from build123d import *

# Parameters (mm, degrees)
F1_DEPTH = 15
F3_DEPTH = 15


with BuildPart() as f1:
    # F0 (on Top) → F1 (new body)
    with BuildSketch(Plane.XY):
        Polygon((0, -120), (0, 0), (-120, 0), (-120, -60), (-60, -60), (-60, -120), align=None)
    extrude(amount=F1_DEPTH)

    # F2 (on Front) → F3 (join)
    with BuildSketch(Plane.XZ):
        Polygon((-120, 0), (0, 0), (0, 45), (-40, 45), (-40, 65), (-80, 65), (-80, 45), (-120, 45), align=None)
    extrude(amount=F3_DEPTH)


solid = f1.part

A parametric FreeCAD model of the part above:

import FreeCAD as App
import Part
import Sketcher
from FreeCAD import Vector

doc = App.newDocument("Part")
body = doc.addObject("PartDesign::Body", "Body")

sketch1 = doc.addObject("Sketcher::SketchObject", "Sketch")
body.addObject(sketch1)
sketch1.AttachmentSupport = (doc.XY_Plane, [""])
sketch1.MapMode = "FlatFace"
sketch1.addGeometry(Part.LineSegment(Vector(0, -120, 0), Vector(0, 0, 0)), False)
sketch1.addGeometry(Part.LineSegment(Vector(0, 0, 0), Vector(-120, 0, 0)), False)
sketch1.addGeometry(Part.LineSegment(Vector(-120, 0, 0), Vector(-120, -60, 0)), False)
sketch1.addGeometry(Part.LineSegment(Vector(-120, -60, 0), Vector(-60, -60, 0)), False)
sketch1.addGeometry(Part.LineSegment(Vector(-60, -60, 0), Vector(-60, -120, 0)), False)
sketch1.addGeometry(Part.LineSegment(Vector(-60, -120, 0), Vector(0, -120, 0)), False)
sketch1.addConstraint(Sketcher.Constraint("Coincident", 0, 2, 1, 1))
sketch1.addConstraint(Sketcher.Constraint("Coincident", 1, 2, 2, 1))
sketch1.addConstraint(Sketcher.Constraint("Coincident", 2, 2, 3, 1))
sketch1.addConstraint(Sketcher.Constraint("Coincident", 3, 2, 4, 1))
sketch1.addConstraint(Sketcher.Constraint("Coincident", 4, 2, 5, 1))
sketch1.addConstraint(Sketcher.Constraint("Coincident", 5, 2, 0, 1))
sketch1.addConstraint(Sketcher.Constraint("Vertical", 0))
sketch1.addConstraint(Sketcher.Constraint("Horizontal", 1))
sketch1.addConstraint(Sketcher.Constraint("Vertical", 2))
sketch1.addConstraint(Sketcher.Constraint("Horizontal", 3))
sketch1.addConstraint(Sketcher.Constraint("Vertical", 4))
sketch1.addConstraint(Sketcher.Constraint("Horizontal", 5))
sketch1.addConstraint(Sketcher.Constraint("Coincident", 0, 2, -1, 1))
sketch1.addConstraint(Sketcher.Constraint("Equal", 3, 5))
sketch1.addConstraint(Sketcher.Constraint("Equal", 1, 0))
sketch1.addConstraint(Sketcher.Constraint("Equal", 5, 2))
sketch1.addConstraint(Sketcher.Constraint("DistanceX", 1, 2, 1, 1, 120.0))
pad1 = doc.addObject("PartDesign::Pad", "Pad")
body.addObject(pad1)
pad1.Profile = sketch1
pad1.Length = 15

sketch2 = doc.addObject("Sketcher::SketchObject", "Sketch001")
body.addObject(sketch2)
sketch2.AttachmentSupport = (doc.XZ_Plane, [""])
sketch2.MapMode = "FlatFace"
sketch2.addGeometry(Part.LineSegment(Vector(-120, 0, 0), Vector(0, 0, 0)), False)
sketch2.addGeometry(Part.LineSegment(Vector(0, 0, 0), Vector(0, 45, 0)), False)
sketch2.addGeometry(Part.LineSegment(Vector(0, 45, 0), Vector(-40, 45, 0)), False)
sketch2.addGeometry(Part.LineSegment(Vector(-40, 45, 0), Vector(-40, 65, 0)), False)
sketch2.addGeometry(Part.LineSegment(Vector(-40, 65, 0), Vector(-80, 65, 0)), False)
sketch2.addGeometry(Part.LineSegment(Vector(-80, 65, 0), Vector(-80, 45, 0)), False)
sketch2.addGeometry(Part.LineSegment(Vector(-80, 45, 0), Vector(-120, 45, 0)), False)
sketch2.addGeometry(Part.LineSegment(Vector(-120, 45, 0), Vector(-120, 0, 0)), False)
sketch2.addConstraint(Sketcher.Constraint("Coincident", 0, 2, 1, 1))
sketch2.addConstraint(Sketcher.Constraint("Coincident", 1, 2, 2, 1))
sketch2.addConstraint(Sketcher.Constraint("Coincident", 2, 2, 3, 1))
sketch2.addConstraint(Sketcher.Constraint("Coincident", 3, 2, 4, 1))
sketch2.addConstraint(Sketcher.Constraint("Coincident", 4, 2, 5, 1))
sketch2.addConstraint(Sketcher.Constraint("Coincident", 5, 2, 6, 1))
sketch2.addConstraint(Sketcher.Constraint("Coincident", 6, 2, 7, 1))
sketch2.addConstraint(Sketcher.Constraint("Coincident", 7, 2, 0, 1))
sketch2.addConstraint(Sketcher.Constraint("Horizontal", 0))
sketch2.addConstraint(Sketcher.Constraint("Vertical", 1))
sketch2.addConstraint(Sketcher.Constraint("Horizontal", 2))
sketch2.addConstraint(Sketcher.Constraint("Vertical", 3))
sketch2.addConstraint(Sketcher.Constraint("Horizontal", 4))
sketch2.addConstraint(Sketcher.Constraint("Vertical", 5))
sketch2.addConstraint(Sketcher.Constraint("Horizontal", 6))
sketch2.addConstraint(Sketcher.Constraint("Vertical", 7))
sketch2.addConstraint(Sketcher.Constraint("Coincident", 0, 2, -1, 1))
sketch2.addConstraint(Sketcher.Constraint("Horizontal", 2, 2, 5, 2))
sketch2.addConstraint(Sketcher.Constraint("Equal", 2, 4))
sketch2.addConstraint(Sketcher.Constraint("Equal", 4, 6))
sketch2.addConstraint(Sketcher.Constraint("DistanceX", 0, 1, 0, 2, 120.0))
sketch2.addConstraint(Sketcher.Constraint("DistanceY", 1, 1, 1, 2, 45.0))
sketch2.addConstraint(Sketcher.Constraint("DistanceY", 3, 1, 3, 2, 20.0))
pad2 = doc.addObject("PartDesign::Pad", "Pad001")
body.addObject(pad2)
pad2.Profile = sketch2
pad2.Length = 15

doc.recompute()
